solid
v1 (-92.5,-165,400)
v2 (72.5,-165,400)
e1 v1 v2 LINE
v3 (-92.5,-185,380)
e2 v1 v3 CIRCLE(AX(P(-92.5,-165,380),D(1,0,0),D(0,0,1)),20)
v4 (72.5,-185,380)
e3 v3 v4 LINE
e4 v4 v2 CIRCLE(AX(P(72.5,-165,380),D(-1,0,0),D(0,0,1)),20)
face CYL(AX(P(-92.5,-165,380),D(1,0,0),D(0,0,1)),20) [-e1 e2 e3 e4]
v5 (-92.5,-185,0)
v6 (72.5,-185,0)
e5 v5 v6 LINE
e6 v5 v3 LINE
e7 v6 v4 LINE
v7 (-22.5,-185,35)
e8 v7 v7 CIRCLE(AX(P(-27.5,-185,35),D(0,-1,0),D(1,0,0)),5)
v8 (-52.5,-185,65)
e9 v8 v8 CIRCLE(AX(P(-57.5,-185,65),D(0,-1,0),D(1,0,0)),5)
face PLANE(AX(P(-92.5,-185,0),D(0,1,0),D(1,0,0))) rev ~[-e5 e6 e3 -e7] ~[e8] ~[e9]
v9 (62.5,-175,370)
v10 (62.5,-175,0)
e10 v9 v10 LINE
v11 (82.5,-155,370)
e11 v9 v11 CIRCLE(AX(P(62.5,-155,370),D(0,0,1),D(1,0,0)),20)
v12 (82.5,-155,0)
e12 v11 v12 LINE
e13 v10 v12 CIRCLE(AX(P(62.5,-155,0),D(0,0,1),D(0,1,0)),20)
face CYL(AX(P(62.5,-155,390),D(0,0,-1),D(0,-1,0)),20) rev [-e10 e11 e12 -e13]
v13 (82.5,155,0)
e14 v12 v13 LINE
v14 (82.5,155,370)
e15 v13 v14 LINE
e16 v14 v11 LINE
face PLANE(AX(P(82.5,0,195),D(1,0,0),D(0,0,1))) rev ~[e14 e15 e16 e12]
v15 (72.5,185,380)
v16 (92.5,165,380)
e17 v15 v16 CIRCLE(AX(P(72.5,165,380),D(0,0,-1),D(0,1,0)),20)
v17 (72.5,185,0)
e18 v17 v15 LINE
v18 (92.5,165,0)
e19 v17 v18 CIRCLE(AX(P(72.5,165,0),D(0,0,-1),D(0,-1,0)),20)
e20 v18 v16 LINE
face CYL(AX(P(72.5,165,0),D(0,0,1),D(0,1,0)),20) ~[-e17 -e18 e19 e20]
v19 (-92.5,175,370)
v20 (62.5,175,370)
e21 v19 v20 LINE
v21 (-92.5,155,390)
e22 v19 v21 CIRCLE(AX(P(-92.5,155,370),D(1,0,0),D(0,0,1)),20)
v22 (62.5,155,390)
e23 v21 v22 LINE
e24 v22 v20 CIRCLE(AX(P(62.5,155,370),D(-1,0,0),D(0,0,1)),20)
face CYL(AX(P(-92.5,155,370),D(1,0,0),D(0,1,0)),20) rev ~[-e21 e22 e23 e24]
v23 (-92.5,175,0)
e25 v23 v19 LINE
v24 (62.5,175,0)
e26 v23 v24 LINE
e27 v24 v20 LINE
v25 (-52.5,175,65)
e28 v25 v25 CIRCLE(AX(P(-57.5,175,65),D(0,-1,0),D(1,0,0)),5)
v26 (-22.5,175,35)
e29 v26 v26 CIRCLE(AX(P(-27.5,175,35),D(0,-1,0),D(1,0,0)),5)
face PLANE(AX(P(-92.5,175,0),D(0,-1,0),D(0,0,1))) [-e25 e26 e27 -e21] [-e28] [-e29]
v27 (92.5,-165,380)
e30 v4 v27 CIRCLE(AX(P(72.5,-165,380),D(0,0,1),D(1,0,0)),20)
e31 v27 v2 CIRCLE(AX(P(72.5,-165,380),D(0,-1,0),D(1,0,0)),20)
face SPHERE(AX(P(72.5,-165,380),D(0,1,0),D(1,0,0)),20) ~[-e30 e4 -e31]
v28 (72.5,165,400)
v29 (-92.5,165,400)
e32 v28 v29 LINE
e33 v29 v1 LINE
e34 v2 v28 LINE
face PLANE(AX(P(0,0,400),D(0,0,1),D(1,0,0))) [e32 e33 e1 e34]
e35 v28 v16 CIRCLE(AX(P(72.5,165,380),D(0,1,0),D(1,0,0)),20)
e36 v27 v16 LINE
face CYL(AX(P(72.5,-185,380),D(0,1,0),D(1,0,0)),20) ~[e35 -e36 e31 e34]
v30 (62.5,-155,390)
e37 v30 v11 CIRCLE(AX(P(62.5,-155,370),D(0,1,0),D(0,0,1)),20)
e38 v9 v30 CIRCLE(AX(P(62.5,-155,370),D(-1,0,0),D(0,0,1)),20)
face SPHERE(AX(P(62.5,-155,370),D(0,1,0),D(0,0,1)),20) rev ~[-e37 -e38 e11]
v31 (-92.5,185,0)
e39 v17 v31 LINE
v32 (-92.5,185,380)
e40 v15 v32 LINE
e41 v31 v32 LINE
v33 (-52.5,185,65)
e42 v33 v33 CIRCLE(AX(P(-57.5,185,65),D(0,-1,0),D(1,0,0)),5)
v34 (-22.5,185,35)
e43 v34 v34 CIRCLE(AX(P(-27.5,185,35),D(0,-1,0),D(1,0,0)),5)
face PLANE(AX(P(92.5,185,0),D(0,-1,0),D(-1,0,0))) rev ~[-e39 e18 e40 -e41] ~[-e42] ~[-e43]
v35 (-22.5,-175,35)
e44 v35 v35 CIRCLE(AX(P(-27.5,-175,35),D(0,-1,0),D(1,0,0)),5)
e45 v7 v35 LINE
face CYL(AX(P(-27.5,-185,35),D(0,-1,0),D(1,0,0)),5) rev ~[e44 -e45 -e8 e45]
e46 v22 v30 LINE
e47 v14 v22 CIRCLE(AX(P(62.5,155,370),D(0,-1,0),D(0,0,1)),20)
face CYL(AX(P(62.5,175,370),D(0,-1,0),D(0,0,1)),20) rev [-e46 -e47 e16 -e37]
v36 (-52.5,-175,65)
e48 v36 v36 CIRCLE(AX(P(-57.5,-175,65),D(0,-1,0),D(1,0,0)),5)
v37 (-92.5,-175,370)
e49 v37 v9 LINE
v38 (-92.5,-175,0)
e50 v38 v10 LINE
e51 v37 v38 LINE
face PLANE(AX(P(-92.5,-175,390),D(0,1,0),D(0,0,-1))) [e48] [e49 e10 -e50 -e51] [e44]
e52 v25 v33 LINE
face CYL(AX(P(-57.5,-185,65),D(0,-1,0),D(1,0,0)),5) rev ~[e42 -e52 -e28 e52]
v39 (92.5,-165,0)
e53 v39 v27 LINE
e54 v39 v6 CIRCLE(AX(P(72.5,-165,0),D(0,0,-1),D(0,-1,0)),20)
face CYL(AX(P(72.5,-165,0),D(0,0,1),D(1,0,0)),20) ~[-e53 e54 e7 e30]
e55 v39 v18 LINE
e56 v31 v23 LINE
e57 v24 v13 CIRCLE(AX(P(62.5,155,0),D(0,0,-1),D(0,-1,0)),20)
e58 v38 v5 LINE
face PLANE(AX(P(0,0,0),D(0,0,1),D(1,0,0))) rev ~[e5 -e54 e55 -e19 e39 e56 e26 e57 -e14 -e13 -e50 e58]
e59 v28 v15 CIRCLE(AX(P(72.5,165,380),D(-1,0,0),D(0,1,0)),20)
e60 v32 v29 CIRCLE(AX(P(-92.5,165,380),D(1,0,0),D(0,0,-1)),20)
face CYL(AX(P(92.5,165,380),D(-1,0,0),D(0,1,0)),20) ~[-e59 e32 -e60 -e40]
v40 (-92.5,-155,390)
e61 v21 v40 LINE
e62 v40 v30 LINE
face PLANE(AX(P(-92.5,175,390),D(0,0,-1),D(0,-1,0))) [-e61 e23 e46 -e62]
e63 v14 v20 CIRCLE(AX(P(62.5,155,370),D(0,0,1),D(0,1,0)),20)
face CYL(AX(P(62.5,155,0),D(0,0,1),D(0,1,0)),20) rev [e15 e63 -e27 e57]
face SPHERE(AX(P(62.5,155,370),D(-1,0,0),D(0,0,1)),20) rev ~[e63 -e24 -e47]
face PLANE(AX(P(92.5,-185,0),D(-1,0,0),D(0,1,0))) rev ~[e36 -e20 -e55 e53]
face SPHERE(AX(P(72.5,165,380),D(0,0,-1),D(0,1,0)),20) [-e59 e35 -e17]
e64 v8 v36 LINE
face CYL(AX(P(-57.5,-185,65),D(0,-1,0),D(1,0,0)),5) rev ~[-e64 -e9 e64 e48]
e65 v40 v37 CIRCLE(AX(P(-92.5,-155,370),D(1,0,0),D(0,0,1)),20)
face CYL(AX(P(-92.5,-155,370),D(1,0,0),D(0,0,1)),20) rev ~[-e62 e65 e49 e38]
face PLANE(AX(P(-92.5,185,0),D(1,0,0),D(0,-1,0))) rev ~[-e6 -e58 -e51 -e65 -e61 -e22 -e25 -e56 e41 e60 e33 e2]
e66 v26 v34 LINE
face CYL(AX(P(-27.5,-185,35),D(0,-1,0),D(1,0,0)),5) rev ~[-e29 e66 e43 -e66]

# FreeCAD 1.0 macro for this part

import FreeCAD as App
import Part
import Sketcher

V = App.Vector


def edges_at(feature, points):
    """Names of the edges that pass closest to the given points."""
    edges = feature.Shape.Edges
    near = lambda p: min(range(len(edges)), key=lambda i: edges[i].distToShape(Part.Vertex(*p))[0])
    return sorted({f"Edge{near(p) + 1}" for p in points})

doc = App.newDocument("Part")
params = doc.addObject("Spreadsheet::Sheet", "Params")
for row, (alias, value) in enumerate([
    ("sketch1_height", "370 mm"),
    ("pad1_length", "400 mm"),
    ("sketch2_width", "350 mm"),
    ("sketch2_height", "390 mm"),
    ("pocket1_length", "175 mm"),
    ("fillet_radius", "20 mm"),
    ("sketch3_diameter", "10 mm"),
], start=1):
    params.set(f"A{row}", alias)
    params.set(f"B{row}", "=" + value)
    params.setAlias(f"B{row}", alias)

body = doc.addObject("PartDesign::Body", "Body")

# Sketch on XY plane
sketch1 = doc.addObject("Sketcher::SketchObject", "Sketch")
body.addObject(sketch1)
sketch1.AttachmentSupport = (doc.XY_Plane, [""])
sketch1.MapMode = "FlatFace"
sketch1.addGeometry([
    Part.LineSegment(V(92.5, -185, 0), V(92.5, 185, 0)),
    Part.LineSegment(V(92.5, 185, 0), V(-92.5, 185, 0)),
    Part.LineSegment(V(-92.5, 185, 0), V(-92.5, -185, 0)),
    Part.LineSegment(V(-92.5, -185, 0), V(92.5, -185, 0)),
], False)
sketch1.addConstraint([
    Sketcher.Constraint("Coincident", 0, 2, 1, 1),
    Sketcher.Constraint("Coincident", 1, 2, 2, 1),
    Sketcher.Constraint("Coincident", 2, 2, 3, 1),
    Sketcher.Constraint("Coincident", 3, 2, 0, 1),
    Sketcher.Constraint("Vertical", 0),
    Sketcher.Constraint("Horizontal", 1),
    Sketcher.Constraint("Vertical", 2),
    Sketcher.Constraint("Horizontal", 3),
    Sketcher.Constraint("Symmetric", 0, 2, 2, 2, -1, 1),
    Sketcher.Constraint("DistanceX", -1, 1, 0, 2, 92.5),
    Sketcher.Constraint("DistanceY", 0, 1, 0, 2, 370.0),
])
sketch1.setExpression("Constraints[10]", "Params.sketch1_height")
pad1 = doc.addObject("PartDesign::Pad", "Pad")
body.addObject(pad1)
pad1.Profile = sketch1
pad1.setExpression("Length", "Params.pad1_length")

# Sketch on YZ plane
sketch2 = doc.addObject("Sketcher::SketchObject", "Sketch001")
body.addObject(sketch2)
sketch2.AttachmentSupport = (doc.YZ_Plane, [""])
sketch2.MapMode = "FlatFace"
sketch2.AttachmentOffset = App.Placement(V(0, 0, -92.5), App.Rotation())
sketch2.addGeometry([
    Part.LineSegment(V(-175, 0, 0), V(-175, 390, 0)),
    Part.LineSegment(V(-175, 390, 0), V(175, 390, 0)),
    Part.LineSegment(V(175, 390, 0), V(175, 0, 0)),
    Part.LineSegment(V(175, 0, 0), V(-175, 0, 0)),
], False)
sketch2.addConstraint([
    Sketcher.Constraint("Coincident", 0, 2, 1, 1),
    Sketcher.Constraint("Coincident", 1, 2, 2, 1),
    Sketcher.Constraint("Coincident", 2, 2, 3, 1),
    Sketcher.Constraint("Coincident", 3, 2, 0, 1),
    Sketcher.Constraint("Vertical", 0),
    Sketcher.Constraint("Horizontal", 1),
    Sketcher.Constraint("Vertical", 2),
    Sketcher.Constraint("Horizontal", 3),
    Sketcher.Constraint("Symmetric", 2, 2, 3, 2, -1, 1),
    Sketcher.Constraint("DistanceX", 1, 1, 1, 2, 350.0),
    Sketcher.Constraint("DistanceY", 0, 1, 0, 2, 390.0),
])
sketch2.setExpression("Constraints[9]", "Params.sketch2_width")
sketch2.setExpression("Constraints[10]", "Params.sketch2_height")
pocket1 = doc.addObject("PartDesign::Pocket", "Pocket")
body.addObject(pocket1)
pocket1.Profile = sketch2
pocket1.setExpression("Length", "Params.pocket1_length")
pocket1.Reversed = True
doc.recompute()

fillet = doc.addObject("PartDesign::Fillet", "Fillet")
body.addObject(fillet)
fillet.Base = (pocket1, edges_at(pocket1, [
    (-5, 175, 390),
    (82.5, 0, 390),
    (-5, -175, 390),
    (82.5, -175, 195),
    (82.5, 175, 195),
    (92.5, 185, 200),
    (0, 185, 400),
    (92.5, 0, 400),
    (92.5, -185, 200),
    (0, -185, 400),
]))
fillet.setExpression("Radius", "Params.fillet_radius")

# Sketch on XZ plane
sketch3 = doc.addObject("Sketcher::SketchObject", "Sketch002")
body.addObject(sketch3)
sketch3.AttachmentSupport = (doc.XZ_Plane, [""])
sketch3.MapMode = "FlatFace"
sketch3.AttachmentOffset = App.Placement(V(0, 0, 185), App.Rotation())
sketch3.addGeometry([
    Part.Circle(V(-57.5, 65, 0), V(0, 0, 1), 5),
    Part.Circle(V(-27.5, 35, 0), V(0, 0, 1), 5),
], False)
sketch3.addConstraint([
    Sketcher.Constraint("Equal", 0, 1),
    Sketcher.Constraint("Diameter", 0, 10.0),
    Sketcher.Constraint("DistanceY", -1, 1, 0, 3, 65.0),
    Sketcher.Constraint("DistanceY", -1, 1, 1, 3, 35.0),
    Sketcher.Constraint("DistanceX", 0, 3, 1, 3, 30.0),
    Sketcher.Constraint("DistanceX", 0, 3, -1, 1, 57.5),
])
sketch3.setExpression("Constraints[1]", "Params.sketch3_diameter")
pocket2 = doc.addObject("PartDesign::Pocket", "Pocket001")
body.addObject(pocket2)
pocket2.Profile = sketch3
pocket2.Type = "ThroughAll"

doc.recompute()
